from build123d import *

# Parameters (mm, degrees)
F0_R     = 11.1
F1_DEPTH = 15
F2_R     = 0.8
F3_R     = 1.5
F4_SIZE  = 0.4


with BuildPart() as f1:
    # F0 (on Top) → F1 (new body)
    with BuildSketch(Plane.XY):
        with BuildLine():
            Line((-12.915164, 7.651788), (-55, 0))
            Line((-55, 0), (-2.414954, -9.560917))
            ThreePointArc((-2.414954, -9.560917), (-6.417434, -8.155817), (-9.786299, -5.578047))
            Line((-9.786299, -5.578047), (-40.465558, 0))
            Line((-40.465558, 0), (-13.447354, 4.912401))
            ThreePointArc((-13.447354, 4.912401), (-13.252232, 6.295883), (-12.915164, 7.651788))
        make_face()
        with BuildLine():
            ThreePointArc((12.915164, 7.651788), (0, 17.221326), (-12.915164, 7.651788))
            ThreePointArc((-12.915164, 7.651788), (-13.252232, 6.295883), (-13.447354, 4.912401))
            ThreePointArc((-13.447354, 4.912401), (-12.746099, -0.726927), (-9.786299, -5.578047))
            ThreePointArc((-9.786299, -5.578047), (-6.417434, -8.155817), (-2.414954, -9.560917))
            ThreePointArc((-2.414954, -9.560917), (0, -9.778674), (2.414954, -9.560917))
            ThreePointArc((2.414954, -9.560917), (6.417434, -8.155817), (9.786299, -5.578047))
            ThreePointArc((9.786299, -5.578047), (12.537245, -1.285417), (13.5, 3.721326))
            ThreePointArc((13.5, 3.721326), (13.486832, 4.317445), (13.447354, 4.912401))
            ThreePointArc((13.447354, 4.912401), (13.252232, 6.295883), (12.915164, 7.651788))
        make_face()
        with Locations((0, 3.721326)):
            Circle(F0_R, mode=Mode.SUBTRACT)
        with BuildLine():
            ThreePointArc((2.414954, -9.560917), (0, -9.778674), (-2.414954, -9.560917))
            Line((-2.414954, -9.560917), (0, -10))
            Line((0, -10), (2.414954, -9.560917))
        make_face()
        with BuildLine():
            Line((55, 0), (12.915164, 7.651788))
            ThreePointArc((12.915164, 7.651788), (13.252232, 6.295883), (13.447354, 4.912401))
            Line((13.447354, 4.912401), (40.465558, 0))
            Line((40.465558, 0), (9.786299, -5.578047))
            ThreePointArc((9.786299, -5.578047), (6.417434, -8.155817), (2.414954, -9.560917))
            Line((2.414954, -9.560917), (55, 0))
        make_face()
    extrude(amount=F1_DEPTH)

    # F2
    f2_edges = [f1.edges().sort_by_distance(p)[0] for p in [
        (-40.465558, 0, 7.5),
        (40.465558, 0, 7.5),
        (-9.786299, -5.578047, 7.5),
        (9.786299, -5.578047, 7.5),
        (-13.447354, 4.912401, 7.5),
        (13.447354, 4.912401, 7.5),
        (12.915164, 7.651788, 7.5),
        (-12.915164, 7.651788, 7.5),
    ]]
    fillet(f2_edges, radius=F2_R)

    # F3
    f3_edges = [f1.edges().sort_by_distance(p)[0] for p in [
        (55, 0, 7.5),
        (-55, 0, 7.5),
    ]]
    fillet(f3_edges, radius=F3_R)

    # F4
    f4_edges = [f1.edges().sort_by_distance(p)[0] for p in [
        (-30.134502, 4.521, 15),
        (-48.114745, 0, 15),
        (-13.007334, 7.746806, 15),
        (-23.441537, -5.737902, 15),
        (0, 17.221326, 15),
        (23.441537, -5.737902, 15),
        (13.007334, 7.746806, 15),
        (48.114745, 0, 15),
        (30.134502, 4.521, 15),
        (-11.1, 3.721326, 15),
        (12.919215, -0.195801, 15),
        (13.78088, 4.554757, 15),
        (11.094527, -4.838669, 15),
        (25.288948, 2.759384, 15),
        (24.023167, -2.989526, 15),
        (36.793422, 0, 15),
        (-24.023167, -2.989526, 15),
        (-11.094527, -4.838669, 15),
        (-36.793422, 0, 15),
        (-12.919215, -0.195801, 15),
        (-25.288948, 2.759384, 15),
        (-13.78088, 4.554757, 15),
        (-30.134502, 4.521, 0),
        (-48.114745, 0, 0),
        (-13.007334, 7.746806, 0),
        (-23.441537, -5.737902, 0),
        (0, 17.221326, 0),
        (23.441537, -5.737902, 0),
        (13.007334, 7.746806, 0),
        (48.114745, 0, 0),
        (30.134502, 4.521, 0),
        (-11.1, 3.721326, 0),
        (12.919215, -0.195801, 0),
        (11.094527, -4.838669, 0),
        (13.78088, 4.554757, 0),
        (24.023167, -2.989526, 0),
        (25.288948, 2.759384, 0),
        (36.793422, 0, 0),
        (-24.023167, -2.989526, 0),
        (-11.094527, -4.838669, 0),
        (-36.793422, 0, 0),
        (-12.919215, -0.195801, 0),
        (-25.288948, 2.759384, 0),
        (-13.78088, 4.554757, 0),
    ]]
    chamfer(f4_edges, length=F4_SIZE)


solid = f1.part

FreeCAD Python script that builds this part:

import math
import FreeCAD as App
import Part
import Sketcher
from FreeCAD import Vector


def edges_at(feature, points):
    """Names of the edges that pass closest to the given points."""
    edges = feature.Shape.Edges
    near = lambda p: min(range(len(edges)), key=lambda i: edges[i].distToShape(Part.Vertex(*p))[0])
    return sorted({f"Edge{near(p) + 1}" for p in points})

doc = App.newDocument("Part")
body = doc.addObject("PartDesign::Body", "Body")

sketch1 = body.newObject("Sketcher::SketchObject", "Sketch")
sketch1.AttachmentSupport = (doc.getObject("XY_Plane"), [""])
sketch1.MapMode = "FlatFace"
sketch1.addGeometry(Part.LineSegment(Vector(-12.915164, 7.651788, 0), Vector(-55, 0, 0)), False)
sketch1.addGeometry(Part.LineSegment(Vector(-55, 0, 0), Vector(-2.414954, -9.560917, 0)), False)
sketch1.addGeometry(Part.LineSegment(Vector(-2.414954, -9.560917, 0), Vector(0, -10, 0)), False)
sketch1.addGeometry(Part.LineSegment(Vector(0, -10, 0), Vector(2.414954, -9.560917, 0)), False)
sketch1.addGeometry(Part.LineSegment(Vector(2.414954, -9.560917, 0), Vector(55, 0, 0)), False)
sketch1.addGeometry(Part.LineSegment(Vector(55, 0, 0), Vector(12.915164, 7.651788, 0)), False)
sketch1.addGeometry(Part.ArcOfCircle(Part.Circle(Vector(0, 3.721326, 0), Vector(0, 0, 1), 13.5), math.radians(16.926537), math.radians(163.073463)), False)
sketch1.addGeometry(Part.ArcOfCircle(Part.Circle(Vector(-0.000002, 3.721328, 0), Vector(0, 0, 1), 13.500002), math.radians(-43.538548), math.radians(-0.000007)), False)
sketch1.addGeometry(Part.ArcOfCircle(Part.Circle(Vector(0.000024, 3.721323, 0), Vector(0, 0, 1), 13.499976), math.radians(0.000015), math.radians(5.061684)), False)
sketch1.addGeometry(Part.LineSegment(Vector(13.447354, 4.912401, 0), Vector(40.465558, 0, 0)), False)
sketch1.addGeometry(Part.LineSegment(Vector(40.465558, 0, 0), Vector(9.786299, -5.578047, 0)), False)
sketch1.addGeometry(Part.LineSegment(Vector(-9.786299, -5.578047, 0), Vector(-40.465558, 0, 0)), False)
sketch1.addGeometry(Part.LineSegment(Vector(-40.465558, 0, 0), Vector(-13.447354, 4.912401, 0)), False)
sketch1.addGeometry(Part.ArcOfCircle(Part.Circle(Vector(-0.000003, 3.721325, 0), Vector(0, 0, 1), 13.499997), math.radians(174.938335), math.radians(223.538555)), False)
sketch1.addGeometry(Part.Circle(Vector(0, 3.721326, 0), Vector(0, 0, 1), 11.1), False)
sketch1.addConstraint(Sketcher.Constraint("Coincident", 0, 2, 1, 1))
sketch1.addConstraint(Sketcher.Constraint("Coincident", 1, 2, 2, 1))
sketch1.addConstraint(Sketcher.Constraint("Coincident", 2, 2, 3, 1))
sketch1.addConstraint(Sketcher.Constraint("Coincident", 3, 2, 4, 1))
sketch1.addConstraint(Sketcher.Constraint("Coincident", 4, 2, 5, 1))
sketch1.addConstraint(Sketcher.Constraint("Coincident", 5, 2, 6, 1))
sketch1.addConstraint(Sketcher.Constraint("Coincident", 6, 2, 0, 1))
sketch1.addConstraint(Sketcher.Constraint("Coincident", 7, 2, 8, 1))
sketch1.addConstraint(Sketcher.Constraint("Coincident", 8, 2, 9, 1))
sketch1.addConstraint(Sketcher.Constraint("Coincident", 9, 2, 10, 1))
sketch1.addConstraint(Sketcher.Constraint("Coincident", 10, 2, 7, 1))
sketch1.addConstraint(Sketcher.Constraint("Coincident", 11, 2, 12, 1))
sketch1.addConstraint(Sketcher.Constraint("Coincident", 12, 2, 13, 1))
sketch1.addConstraint(Sketcher.Constraint("Coincident", 13, 2, 11, 1))
sketch1.addConstraint(Sketcher.Constraint("Coincident", 7, 3, 6, 3))
sketch1.addConstraint(Sketcher.Constraint("Coincident", 13, 3, 6, 3))
sketch1.addConstraint(Sketcher.Constraint("Coincident", 14, 3, 6, 3))
sketch1.addConstraint(Sketcher.Constraint("PointOnObject", 6, 3, -2))
sketch1.addConstraint(Sketcher.Constraint("PointOnObject", 0, 2, -1))
sketch1.addConstraint(Sketcher.Constraint("PointOnObject", 2, 2, -2))
sketch1.addConstraint(Sketcher.Constraint("PointOnObject", 4, 2, -1))
sketch1.addConstraint(Sketcher.Constraint("PointOnObject", 9, 2, -1))
sketch1.addConstraint(Sketcher.Constraint("PointOnObject", 11, 2, -1))
sketch1.addConstraint(Sketcher.Constraint("Diameter", 14, 22.2))
sketch1.addConstraint(Sketcher.Constraint("Radius", 6, 13.5))
sketch1.addConstraint(Sketcher.Constraint("DistanceX", 0, 2, -1, 1, 55.0))
sketch1.addConstraint(Sketcher.Constraint("DistanceY", 2, 2, -1, 1, 10.0))
sketch1.addConstraint(Sketcher.Constraint("DistanceX", -1, 1, 4, 2, 55.0))
sketch1.addConstraint(Sketcher.Constraint("DistanceX", -1, 1, 7, 2, 13.5))
sketch1.addConstraint(Sketcher.Constraint("Radius", 8, 13.499976))
sketch1.addConstraint(Sketcher.Constraint("Radius", 13, 13.499997))
sketch1.addConstraint(Sketcher.Constraint("DistanceY", -1, 1, 8, 2, 4.912401))
sketch1.addConstraint(Sketcher.Constraint("DistanceX", -1, 1, 10, 2, 9.786299))
sketch1.addConstraint(Sketcher.Constraint("DistanceY", -1, 1, 12, 2, 4.912401))
sketch1.addConstraint(Sketcher.Constraint("DistanceX", 13, 2, -1, 1, 9.786299))
sketch1.addConstraint(Sketcher.Constraint("Distance", 10, 31.182231))
sketch1.addConstraint(Sketcher.Constraint("Distance", 11, 31.182231))
sketch1.addConstraint(Sketcher.Constraint("DistanceY", -1, 1, 6, 2, 7.651788))
sketch1.addConstraint(Sketcher.Constraint("DistanceX", 1, 2, 13, 3, 2.414951))
sketch1.addConstraint(Sketcher.Constraint("DistanceY", 1, 2, 8, 3, 13.28224))
sketch1.addConstraint(Sketcher.Constraint("DistanceX", 8, 3, 3, 2, 2.41493))
sketch1.addConstraint(Sketcher.Constraint("DistanceY", 3, 2, 8, 3, 13.28224))
sketch1.addConstraint(Sketcher.Constraint("DistanceX", 8, 3, 5, 2, 12.91514))
sketch1.addConstraint(Sketcher.Constraint("DistanceX", 6, 2, 7, 3, 12.915162))
sketch1.addConstraint(Sketcher.Constraint("DistanceY", 7, 2, 5, 2, 3.930462))
sketch1.addConstraint(Sketcher.Constraint("DistanceX", 5, 2, 8, 2, 0.53219))
pad1 = body.newObject("PartDesign::Pad", "Pad")
pad1.Profile = sketch1
pad1.Length = 15
doc.recompute()

fillet = body.newObject("PartDesign::Fillet", "Fillet")
fillet.Base = (pad1, edges_at(pad1, [
    (-40.466, 0, 7.5),
    (40.466, 0, 7.5),
    (-9.786, -5.578, 7.5),
    (9.786, -5.578, 7.5),
    (-13.447, 4.912, 7.5),
    (13.447, 4.912, 7.5),
    (12.915, 7.652, 7.5),
    (-12.915, 7.652, 7.5),
]))
fillet.Radius = 0.8
doc.recompute()

fillet2 = body.newObject("PartDesign::Fillet", "Fillet001")
fillet2.Base = (fillet, edges_at(fillet, [(55, 0, 7.5), (-55, 0, 7.5)]))
fillet2.Radius = 1.5
doc.recompute()

chamfer = body.newObject("PartDesign::Chamfer", "Chamfer")
chamfer.Base = (fillet2, edges_at(fillet2, [
    (-30.135, 4.521, 15),
    (-48.115, 0, 15),
    (-13.007, 7.747, 15),
    (-24.649, -5.518, 15),
    (0, 17.221, 15),
    (24.649, -5.518, 15),
    (13.007, 7.747, 15),
    (48.115, 0, 15),
    (30.135, 4.521, 15),
    (-11.1, 3.721, 15),
    (12.888, -0.297, 15),
    (13.781, 4.555, 15),
    (11.095, -4.839, 15),
    (25.289, 2.759, 15),
    (24.023, -2.99, 15),
    (36.793, 0, 15),
    (-24.023, -2.99, 15),
    (-11.095, -4.839, 15),
    (-36.793, 0, 15),
    (-12.919, -0.196, 15),
    (-25.289, 2.759, 15),
    (-13.781, 4.555, 15),
    (-30.135, 4.521, 0),
    (-48.115, 0, 0),
    (-13.007, 7.747, 0),
    (-24.649, -5.518, 0),
    (0, 17.221, 0),
    (24.649, -5.518, 0),
    (13.007, 7.747, 0),
    (48.115, 0, 0),
    (30.135, 4.521, 0),
    (-11.1, 3.721, 0),
    (12.888, -0.297, 0),
    (11.095, -4.839, 0),
    (13.781, 4.555, 0),
    (24.023, -2.99, 0),
    (25.289, 2.759, 0),
    (36.793, 0, 0),
    (-24.023, -2.99, 0),
    (-11.095, -4.839, 0),
    (-36.793, 0, 0),
    (-12.919, -0.196, 0),
    (-25.289, 2.759, 0),
    (-13.781, 4.555, 0),
]))
chamfer.Size = 0.4

doc.recompute()
